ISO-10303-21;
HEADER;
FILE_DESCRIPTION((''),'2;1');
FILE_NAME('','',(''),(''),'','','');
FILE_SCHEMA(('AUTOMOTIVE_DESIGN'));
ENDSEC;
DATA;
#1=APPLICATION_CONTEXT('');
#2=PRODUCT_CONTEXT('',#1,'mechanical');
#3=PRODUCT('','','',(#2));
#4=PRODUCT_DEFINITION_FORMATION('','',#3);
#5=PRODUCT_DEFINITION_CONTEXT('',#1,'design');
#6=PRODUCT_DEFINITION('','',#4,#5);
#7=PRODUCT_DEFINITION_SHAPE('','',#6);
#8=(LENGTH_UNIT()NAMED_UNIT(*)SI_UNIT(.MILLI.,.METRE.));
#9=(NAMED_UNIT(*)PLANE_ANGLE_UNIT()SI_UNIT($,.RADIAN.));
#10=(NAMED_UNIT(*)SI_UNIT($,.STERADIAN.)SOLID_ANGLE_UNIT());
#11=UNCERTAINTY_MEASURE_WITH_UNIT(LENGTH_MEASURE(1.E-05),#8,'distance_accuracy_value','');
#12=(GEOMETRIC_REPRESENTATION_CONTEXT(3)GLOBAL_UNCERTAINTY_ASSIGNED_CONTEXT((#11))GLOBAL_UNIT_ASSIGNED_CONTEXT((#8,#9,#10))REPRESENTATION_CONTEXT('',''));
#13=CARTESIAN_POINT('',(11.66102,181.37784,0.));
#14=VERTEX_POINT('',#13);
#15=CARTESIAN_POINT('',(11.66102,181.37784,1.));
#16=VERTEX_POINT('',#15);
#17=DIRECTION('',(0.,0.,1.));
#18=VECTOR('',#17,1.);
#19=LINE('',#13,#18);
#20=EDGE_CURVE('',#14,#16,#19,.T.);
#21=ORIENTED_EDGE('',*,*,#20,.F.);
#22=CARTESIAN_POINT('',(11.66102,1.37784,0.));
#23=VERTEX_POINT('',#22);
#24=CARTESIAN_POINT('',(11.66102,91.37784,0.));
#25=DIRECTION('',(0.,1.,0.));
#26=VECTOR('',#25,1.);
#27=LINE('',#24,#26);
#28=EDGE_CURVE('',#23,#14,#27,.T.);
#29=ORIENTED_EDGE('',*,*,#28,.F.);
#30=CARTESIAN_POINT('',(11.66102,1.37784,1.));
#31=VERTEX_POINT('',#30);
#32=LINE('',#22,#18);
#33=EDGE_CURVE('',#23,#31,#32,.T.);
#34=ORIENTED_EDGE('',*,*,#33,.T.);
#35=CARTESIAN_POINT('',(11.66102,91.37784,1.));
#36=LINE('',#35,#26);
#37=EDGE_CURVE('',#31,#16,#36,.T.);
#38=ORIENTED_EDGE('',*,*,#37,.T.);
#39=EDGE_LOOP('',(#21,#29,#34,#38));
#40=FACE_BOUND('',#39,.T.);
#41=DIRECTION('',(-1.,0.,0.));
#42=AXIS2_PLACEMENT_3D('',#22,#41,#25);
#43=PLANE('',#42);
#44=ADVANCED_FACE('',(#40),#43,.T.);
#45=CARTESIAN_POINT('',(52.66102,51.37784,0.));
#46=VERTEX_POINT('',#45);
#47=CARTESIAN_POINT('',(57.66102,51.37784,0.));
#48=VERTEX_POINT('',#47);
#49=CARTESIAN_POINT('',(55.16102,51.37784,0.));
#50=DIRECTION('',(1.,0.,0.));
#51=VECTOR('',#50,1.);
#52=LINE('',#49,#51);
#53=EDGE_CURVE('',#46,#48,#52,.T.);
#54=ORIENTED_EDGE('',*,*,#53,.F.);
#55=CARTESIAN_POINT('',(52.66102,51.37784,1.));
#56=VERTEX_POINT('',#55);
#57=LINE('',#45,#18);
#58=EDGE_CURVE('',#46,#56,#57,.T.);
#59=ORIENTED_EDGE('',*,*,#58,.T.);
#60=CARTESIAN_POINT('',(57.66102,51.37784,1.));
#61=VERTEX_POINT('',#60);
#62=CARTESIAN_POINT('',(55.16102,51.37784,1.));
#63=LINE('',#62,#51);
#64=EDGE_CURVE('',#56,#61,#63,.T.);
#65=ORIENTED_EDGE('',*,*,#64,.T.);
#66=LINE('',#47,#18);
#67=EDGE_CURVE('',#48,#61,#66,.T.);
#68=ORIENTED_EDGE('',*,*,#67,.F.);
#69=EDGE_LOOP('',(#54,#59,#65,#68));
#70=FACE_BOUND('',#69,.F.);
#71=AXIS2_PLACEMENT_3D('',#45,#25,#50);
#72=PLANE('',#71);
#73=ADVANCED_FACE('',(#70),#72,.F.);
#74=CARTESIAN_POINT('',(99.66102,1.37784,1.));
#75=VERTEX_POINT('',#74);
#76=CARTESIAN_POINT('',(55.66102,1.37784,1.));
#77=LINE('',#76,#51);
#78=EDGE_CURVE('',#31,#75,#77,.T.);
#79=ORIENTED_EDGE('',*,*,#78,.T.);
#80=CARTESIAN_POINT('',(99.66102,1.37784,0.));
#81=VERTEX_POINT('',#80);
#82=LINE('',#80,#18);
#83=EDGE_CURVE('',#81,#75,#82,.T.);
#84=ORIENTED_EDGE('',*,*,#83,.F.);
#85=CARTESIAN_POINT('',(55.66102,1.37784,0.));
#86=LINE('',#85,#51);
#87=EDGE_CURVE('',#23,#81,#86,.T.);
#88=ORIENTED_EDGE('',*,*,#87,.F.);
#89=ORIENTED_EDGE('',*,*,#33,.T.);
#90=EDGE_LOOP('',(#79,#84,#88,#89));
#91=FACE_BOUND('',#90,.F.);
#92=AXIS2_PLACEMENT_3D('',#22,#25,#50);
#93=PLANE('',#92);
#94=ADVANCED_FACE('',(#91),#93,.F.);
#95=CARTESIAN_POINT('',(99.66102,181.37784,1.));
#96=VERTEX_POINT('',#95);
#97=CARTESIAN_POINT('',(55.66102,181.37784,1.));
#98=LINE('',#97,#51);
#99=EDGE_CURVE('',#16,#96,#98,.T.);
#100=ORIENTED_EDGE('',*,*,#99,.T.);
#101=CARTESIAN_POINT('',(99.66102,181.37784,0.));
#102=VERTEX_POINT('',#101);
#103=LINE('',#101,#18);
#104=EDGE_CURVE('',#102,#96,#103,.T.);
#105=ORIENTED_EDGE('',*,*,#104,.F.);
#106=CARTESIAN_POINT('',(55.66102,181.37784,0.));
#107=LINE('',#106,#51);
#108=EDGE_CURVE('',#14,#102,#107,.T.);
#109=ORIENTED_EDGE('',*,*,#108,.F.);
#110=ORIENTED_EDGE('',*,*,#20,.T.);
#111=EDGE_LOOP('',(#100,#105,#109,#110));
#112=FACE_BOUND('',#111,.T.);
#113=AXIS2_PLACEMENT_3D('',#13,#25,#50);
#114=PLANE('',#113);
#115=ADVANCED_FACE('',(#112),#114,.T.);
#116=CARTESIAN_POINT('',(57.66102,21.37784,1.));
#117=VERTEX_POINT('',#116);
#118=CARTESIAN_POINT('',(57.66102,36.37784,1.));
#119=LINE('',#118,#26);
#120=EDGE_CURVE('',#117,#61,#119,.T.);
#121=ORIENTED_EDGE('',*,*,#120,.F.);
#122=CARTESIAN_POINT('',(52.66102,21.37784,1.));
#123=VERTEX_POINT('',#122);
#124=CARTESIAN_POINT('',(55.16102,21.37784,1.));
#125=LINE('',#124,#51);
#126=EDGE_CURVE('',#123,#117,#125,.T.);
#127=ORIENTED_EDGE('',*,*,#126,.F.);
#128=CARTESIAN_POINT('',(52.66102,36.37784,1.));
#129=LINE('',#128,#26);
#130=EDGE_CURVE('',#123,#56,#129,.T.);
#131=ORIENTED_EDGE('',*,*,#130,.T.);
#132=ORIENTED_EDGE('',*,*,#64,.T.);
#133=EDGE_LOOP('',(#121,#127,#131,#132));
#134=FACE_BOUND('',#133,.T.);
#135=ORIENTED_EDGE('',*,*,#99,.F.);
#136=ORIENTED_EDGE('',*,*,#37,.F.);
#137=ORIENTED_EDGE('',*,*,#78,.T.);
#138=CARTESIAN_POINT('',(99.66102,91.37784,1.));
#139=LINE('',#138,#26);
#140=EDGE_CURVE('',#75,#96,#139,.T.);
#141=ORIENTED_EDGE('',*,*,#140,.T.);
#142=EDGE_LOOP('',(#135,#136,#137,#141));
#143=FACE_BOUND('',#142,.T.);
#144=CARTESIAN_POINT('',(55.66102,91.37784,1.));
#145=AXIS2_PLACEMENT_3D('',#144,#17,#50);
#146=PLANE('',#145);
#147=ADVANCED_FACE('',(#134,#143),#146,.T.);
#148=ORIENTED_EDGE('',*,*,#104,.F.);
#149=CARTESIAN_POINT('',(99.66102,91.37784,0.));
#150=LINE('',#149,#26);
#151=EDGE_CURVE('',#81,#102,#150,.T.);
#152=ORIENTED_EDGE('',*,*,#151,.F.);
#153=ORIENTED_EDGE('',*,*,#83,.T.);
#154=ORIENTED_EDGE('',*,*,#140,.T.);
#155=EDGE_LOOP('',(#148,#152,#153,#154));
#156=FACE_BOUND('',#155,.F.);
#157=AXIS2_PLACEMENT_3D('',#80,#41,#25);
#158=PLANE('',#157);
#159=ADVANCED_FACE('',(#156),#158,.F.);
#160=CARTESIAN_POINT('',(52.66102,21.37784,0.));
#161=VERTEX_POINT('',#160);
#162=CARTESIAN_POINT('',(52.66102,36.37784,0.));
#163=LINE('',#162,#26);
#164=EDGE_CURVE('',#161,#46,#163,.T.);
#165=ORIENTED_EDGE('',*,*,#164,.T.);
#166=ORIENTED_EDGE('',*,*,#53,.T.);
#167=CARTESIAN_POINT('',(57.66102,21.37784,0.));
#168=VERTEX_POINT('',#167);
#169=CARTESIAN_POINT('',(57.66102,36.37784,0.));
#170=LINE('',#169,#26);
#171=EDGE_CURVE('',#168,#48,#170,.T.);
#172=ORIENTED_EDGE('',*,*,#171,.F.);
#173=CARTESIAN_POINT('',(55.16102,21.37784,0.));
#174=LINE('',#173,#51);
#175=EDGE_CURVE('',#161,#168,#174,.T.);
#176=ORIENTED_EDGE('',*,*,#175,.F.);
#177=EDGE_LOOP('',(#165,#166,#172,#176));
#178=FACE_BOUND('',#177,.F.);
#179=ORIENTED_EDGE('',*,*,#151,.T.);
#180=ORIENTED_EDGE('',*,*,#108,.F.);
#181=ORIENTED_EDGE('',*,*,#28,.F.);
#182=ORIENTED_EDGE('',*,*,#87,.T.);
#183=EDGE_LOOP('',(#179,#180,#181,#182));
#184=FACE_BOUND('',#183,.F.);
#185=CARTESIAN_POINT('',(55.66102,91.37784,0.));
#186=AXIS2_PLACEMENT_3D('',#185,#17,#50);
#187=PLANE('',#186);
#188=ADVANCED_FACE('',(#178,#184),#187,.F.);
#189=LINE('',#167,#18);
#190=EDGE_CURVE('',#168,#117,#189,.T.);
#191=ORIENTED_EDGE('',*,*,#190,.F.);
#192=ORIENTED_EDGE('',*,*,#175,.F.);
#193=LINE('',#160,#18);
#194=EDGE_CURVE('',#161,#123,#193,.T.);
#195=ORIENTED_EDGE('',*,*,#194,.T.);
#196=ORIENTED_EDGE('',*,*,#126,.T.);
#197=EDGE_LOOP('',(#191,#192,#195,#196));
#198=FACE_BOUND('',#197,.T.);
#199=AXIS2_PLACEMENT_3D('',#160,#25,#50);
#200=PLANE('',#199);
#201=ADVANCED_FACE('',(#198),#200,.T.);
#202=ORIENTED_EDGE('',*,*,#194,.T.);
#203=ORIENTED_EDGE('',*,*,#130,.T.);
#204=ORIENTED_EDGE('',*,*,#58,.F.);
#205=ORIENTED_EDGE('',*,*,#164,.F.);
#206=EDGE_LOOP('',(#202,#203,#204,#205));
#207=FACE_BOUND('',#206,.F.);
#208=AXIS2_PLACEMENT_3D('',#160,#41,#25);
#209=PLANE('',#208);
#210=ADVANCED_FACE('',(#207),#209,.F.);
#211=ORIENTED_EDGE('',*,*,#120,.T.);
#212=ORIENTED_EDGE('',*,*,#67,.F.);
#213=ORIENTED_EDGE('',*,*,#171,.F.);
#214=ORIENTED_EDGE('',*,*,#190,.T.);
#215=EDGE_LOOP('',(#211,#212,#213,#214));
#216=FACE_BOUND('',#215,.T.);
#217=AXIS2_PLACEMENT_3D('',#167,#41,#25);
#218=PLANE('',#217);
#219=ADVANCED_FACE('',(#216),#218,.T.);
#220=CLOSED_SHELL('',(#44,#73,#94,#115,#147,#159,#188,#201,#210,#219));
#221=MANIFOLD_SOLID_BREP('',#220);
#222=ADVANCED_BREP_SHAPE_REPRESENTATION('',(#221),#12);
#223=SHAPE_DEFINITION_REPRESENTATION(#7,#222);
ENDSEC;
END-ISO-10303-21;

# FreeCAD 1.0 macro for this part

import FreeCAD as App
import Part
import Sketcher


def add_polygon(sketch, points):
    """Adds a closed chain of lines whose ends are joined by coincident constraints."""
    first, n = sketch.GeometryCount, len(points)
    for a, b in zip(points, points[1:] + points[:1]):
        sketch.addGeometry(Part.LineSegment(App.Vector(*a, 0), App.Vector(*b, 0)), False)
    for i in range(n):
        sketch.addConstraint(Sketcher.Constraint("Coincident", first + i, 2, first + (i + 1) % n, 1))

doc = App.newDocument("Part")
params = doc.addObject("Spreadsheet::Sheet", "Params")
for row, (alias, value) in enumerate([
    ("sketch1_width", "88 mm"),
    ("sketch1_width2", "5 mm"),
    ("sketch1_height", "180 mm"),
    ("sketch1_height2", "30 mm"),
    ("pad1_length", "1 mm"),
], start=1):
    params.set(f"A{row}", alias)
    params.set(f"B{row}", "=" + value)
    params.setAlias(f"B{row}", alias)

body = doc.addObject("PartDesign::Body", "Body")

sketch1 = body.newObject("Sketcher::SketchObject", "Sketch")
sketch1.AttachmentSupport = (doc.getObject("XY_Plane"), [""])
sketch1.MapMode = "FlatFace"
add_polygon(sketch1, [(11.66102, 181.37784), (11.66102, 1.37784), (99.66102, 1.37784), (99.66102, 181.37784)])
add_polygon(sketch1, [(57.66102, 21.37784), (52.66102, 21.37784), (52.66102, 51.37784), (57.66102, 51.37784)])
sketch1.addConstraint(Sketcher.Constraint("Vertical", 0))
sketch1.addConstraint(Sketcher.Constraint("Horizontal", 1))
sketch1.addConstraint(Sketcher.Constraint("Vertical", 2))
sketch1.addConstraint(Sketcher.Constraint("Horizontal", 3))
sketch1.addConstraint(Sketcher.Constraint("Horizontal", 4))
sketch1.addConstraint(Sketcher.Constraint("Vertical", 5))
sketch1.addConstraint(Sketcher.Constraint("Horizontal", 6))
sketch1.addConstraint(Sketcher.Constraint("Vertical", 7))
sketch1.addConstraint(Sketcher.Constraint("DistanceX", 1, 1, 1, 2, 88.0))
sketch1.addConstraint(Sketcher.Constraint("DistanceX", 4, 2, 4, 1, 5.0))
sketch1.addConstraint(Sketcher.Constraint("DistanceY", 0, 2, 0, 1, 180.0))
sketch1.addConstraint(Sketcher.Constraint("DistanceY", 5, 1, 5, 2, 30.0))
sketch1.addConstraint(Sketcher.Constraint("DistanceX", 0, 2, 4, 2, 41.0))
sketch1.addConstraint(Sketcher.Constraint("DistanceY", 0, 2, 4, 2, 20.0))
sketch1.addConstraint(Sketcher.Constraint("DistanceX", -1, 1, 0, 2, 11.66102))
sketch1.addConstraint(Sketcher.Constraint("DistanceY", -1, 1, 0, 2, 1.37784))
sketch1.setExpression("Constraints[16]", "Params.sketch1_width")
sketch1.setExpression("Constraints[17]", "Params.sketch1_width2")
sketch1.setExpression("Constraints[18]", "Params.sketch1_height")
sketch1.setExpression("Constraints[19]", "Params.sketch1_height2")
pad1 = body.newObject("PartDesign::Pad", "Pad")
pad1.Profile = sketch1
pad1.setExpression("Length", "Params.pad1_length")

doc.recompute()
